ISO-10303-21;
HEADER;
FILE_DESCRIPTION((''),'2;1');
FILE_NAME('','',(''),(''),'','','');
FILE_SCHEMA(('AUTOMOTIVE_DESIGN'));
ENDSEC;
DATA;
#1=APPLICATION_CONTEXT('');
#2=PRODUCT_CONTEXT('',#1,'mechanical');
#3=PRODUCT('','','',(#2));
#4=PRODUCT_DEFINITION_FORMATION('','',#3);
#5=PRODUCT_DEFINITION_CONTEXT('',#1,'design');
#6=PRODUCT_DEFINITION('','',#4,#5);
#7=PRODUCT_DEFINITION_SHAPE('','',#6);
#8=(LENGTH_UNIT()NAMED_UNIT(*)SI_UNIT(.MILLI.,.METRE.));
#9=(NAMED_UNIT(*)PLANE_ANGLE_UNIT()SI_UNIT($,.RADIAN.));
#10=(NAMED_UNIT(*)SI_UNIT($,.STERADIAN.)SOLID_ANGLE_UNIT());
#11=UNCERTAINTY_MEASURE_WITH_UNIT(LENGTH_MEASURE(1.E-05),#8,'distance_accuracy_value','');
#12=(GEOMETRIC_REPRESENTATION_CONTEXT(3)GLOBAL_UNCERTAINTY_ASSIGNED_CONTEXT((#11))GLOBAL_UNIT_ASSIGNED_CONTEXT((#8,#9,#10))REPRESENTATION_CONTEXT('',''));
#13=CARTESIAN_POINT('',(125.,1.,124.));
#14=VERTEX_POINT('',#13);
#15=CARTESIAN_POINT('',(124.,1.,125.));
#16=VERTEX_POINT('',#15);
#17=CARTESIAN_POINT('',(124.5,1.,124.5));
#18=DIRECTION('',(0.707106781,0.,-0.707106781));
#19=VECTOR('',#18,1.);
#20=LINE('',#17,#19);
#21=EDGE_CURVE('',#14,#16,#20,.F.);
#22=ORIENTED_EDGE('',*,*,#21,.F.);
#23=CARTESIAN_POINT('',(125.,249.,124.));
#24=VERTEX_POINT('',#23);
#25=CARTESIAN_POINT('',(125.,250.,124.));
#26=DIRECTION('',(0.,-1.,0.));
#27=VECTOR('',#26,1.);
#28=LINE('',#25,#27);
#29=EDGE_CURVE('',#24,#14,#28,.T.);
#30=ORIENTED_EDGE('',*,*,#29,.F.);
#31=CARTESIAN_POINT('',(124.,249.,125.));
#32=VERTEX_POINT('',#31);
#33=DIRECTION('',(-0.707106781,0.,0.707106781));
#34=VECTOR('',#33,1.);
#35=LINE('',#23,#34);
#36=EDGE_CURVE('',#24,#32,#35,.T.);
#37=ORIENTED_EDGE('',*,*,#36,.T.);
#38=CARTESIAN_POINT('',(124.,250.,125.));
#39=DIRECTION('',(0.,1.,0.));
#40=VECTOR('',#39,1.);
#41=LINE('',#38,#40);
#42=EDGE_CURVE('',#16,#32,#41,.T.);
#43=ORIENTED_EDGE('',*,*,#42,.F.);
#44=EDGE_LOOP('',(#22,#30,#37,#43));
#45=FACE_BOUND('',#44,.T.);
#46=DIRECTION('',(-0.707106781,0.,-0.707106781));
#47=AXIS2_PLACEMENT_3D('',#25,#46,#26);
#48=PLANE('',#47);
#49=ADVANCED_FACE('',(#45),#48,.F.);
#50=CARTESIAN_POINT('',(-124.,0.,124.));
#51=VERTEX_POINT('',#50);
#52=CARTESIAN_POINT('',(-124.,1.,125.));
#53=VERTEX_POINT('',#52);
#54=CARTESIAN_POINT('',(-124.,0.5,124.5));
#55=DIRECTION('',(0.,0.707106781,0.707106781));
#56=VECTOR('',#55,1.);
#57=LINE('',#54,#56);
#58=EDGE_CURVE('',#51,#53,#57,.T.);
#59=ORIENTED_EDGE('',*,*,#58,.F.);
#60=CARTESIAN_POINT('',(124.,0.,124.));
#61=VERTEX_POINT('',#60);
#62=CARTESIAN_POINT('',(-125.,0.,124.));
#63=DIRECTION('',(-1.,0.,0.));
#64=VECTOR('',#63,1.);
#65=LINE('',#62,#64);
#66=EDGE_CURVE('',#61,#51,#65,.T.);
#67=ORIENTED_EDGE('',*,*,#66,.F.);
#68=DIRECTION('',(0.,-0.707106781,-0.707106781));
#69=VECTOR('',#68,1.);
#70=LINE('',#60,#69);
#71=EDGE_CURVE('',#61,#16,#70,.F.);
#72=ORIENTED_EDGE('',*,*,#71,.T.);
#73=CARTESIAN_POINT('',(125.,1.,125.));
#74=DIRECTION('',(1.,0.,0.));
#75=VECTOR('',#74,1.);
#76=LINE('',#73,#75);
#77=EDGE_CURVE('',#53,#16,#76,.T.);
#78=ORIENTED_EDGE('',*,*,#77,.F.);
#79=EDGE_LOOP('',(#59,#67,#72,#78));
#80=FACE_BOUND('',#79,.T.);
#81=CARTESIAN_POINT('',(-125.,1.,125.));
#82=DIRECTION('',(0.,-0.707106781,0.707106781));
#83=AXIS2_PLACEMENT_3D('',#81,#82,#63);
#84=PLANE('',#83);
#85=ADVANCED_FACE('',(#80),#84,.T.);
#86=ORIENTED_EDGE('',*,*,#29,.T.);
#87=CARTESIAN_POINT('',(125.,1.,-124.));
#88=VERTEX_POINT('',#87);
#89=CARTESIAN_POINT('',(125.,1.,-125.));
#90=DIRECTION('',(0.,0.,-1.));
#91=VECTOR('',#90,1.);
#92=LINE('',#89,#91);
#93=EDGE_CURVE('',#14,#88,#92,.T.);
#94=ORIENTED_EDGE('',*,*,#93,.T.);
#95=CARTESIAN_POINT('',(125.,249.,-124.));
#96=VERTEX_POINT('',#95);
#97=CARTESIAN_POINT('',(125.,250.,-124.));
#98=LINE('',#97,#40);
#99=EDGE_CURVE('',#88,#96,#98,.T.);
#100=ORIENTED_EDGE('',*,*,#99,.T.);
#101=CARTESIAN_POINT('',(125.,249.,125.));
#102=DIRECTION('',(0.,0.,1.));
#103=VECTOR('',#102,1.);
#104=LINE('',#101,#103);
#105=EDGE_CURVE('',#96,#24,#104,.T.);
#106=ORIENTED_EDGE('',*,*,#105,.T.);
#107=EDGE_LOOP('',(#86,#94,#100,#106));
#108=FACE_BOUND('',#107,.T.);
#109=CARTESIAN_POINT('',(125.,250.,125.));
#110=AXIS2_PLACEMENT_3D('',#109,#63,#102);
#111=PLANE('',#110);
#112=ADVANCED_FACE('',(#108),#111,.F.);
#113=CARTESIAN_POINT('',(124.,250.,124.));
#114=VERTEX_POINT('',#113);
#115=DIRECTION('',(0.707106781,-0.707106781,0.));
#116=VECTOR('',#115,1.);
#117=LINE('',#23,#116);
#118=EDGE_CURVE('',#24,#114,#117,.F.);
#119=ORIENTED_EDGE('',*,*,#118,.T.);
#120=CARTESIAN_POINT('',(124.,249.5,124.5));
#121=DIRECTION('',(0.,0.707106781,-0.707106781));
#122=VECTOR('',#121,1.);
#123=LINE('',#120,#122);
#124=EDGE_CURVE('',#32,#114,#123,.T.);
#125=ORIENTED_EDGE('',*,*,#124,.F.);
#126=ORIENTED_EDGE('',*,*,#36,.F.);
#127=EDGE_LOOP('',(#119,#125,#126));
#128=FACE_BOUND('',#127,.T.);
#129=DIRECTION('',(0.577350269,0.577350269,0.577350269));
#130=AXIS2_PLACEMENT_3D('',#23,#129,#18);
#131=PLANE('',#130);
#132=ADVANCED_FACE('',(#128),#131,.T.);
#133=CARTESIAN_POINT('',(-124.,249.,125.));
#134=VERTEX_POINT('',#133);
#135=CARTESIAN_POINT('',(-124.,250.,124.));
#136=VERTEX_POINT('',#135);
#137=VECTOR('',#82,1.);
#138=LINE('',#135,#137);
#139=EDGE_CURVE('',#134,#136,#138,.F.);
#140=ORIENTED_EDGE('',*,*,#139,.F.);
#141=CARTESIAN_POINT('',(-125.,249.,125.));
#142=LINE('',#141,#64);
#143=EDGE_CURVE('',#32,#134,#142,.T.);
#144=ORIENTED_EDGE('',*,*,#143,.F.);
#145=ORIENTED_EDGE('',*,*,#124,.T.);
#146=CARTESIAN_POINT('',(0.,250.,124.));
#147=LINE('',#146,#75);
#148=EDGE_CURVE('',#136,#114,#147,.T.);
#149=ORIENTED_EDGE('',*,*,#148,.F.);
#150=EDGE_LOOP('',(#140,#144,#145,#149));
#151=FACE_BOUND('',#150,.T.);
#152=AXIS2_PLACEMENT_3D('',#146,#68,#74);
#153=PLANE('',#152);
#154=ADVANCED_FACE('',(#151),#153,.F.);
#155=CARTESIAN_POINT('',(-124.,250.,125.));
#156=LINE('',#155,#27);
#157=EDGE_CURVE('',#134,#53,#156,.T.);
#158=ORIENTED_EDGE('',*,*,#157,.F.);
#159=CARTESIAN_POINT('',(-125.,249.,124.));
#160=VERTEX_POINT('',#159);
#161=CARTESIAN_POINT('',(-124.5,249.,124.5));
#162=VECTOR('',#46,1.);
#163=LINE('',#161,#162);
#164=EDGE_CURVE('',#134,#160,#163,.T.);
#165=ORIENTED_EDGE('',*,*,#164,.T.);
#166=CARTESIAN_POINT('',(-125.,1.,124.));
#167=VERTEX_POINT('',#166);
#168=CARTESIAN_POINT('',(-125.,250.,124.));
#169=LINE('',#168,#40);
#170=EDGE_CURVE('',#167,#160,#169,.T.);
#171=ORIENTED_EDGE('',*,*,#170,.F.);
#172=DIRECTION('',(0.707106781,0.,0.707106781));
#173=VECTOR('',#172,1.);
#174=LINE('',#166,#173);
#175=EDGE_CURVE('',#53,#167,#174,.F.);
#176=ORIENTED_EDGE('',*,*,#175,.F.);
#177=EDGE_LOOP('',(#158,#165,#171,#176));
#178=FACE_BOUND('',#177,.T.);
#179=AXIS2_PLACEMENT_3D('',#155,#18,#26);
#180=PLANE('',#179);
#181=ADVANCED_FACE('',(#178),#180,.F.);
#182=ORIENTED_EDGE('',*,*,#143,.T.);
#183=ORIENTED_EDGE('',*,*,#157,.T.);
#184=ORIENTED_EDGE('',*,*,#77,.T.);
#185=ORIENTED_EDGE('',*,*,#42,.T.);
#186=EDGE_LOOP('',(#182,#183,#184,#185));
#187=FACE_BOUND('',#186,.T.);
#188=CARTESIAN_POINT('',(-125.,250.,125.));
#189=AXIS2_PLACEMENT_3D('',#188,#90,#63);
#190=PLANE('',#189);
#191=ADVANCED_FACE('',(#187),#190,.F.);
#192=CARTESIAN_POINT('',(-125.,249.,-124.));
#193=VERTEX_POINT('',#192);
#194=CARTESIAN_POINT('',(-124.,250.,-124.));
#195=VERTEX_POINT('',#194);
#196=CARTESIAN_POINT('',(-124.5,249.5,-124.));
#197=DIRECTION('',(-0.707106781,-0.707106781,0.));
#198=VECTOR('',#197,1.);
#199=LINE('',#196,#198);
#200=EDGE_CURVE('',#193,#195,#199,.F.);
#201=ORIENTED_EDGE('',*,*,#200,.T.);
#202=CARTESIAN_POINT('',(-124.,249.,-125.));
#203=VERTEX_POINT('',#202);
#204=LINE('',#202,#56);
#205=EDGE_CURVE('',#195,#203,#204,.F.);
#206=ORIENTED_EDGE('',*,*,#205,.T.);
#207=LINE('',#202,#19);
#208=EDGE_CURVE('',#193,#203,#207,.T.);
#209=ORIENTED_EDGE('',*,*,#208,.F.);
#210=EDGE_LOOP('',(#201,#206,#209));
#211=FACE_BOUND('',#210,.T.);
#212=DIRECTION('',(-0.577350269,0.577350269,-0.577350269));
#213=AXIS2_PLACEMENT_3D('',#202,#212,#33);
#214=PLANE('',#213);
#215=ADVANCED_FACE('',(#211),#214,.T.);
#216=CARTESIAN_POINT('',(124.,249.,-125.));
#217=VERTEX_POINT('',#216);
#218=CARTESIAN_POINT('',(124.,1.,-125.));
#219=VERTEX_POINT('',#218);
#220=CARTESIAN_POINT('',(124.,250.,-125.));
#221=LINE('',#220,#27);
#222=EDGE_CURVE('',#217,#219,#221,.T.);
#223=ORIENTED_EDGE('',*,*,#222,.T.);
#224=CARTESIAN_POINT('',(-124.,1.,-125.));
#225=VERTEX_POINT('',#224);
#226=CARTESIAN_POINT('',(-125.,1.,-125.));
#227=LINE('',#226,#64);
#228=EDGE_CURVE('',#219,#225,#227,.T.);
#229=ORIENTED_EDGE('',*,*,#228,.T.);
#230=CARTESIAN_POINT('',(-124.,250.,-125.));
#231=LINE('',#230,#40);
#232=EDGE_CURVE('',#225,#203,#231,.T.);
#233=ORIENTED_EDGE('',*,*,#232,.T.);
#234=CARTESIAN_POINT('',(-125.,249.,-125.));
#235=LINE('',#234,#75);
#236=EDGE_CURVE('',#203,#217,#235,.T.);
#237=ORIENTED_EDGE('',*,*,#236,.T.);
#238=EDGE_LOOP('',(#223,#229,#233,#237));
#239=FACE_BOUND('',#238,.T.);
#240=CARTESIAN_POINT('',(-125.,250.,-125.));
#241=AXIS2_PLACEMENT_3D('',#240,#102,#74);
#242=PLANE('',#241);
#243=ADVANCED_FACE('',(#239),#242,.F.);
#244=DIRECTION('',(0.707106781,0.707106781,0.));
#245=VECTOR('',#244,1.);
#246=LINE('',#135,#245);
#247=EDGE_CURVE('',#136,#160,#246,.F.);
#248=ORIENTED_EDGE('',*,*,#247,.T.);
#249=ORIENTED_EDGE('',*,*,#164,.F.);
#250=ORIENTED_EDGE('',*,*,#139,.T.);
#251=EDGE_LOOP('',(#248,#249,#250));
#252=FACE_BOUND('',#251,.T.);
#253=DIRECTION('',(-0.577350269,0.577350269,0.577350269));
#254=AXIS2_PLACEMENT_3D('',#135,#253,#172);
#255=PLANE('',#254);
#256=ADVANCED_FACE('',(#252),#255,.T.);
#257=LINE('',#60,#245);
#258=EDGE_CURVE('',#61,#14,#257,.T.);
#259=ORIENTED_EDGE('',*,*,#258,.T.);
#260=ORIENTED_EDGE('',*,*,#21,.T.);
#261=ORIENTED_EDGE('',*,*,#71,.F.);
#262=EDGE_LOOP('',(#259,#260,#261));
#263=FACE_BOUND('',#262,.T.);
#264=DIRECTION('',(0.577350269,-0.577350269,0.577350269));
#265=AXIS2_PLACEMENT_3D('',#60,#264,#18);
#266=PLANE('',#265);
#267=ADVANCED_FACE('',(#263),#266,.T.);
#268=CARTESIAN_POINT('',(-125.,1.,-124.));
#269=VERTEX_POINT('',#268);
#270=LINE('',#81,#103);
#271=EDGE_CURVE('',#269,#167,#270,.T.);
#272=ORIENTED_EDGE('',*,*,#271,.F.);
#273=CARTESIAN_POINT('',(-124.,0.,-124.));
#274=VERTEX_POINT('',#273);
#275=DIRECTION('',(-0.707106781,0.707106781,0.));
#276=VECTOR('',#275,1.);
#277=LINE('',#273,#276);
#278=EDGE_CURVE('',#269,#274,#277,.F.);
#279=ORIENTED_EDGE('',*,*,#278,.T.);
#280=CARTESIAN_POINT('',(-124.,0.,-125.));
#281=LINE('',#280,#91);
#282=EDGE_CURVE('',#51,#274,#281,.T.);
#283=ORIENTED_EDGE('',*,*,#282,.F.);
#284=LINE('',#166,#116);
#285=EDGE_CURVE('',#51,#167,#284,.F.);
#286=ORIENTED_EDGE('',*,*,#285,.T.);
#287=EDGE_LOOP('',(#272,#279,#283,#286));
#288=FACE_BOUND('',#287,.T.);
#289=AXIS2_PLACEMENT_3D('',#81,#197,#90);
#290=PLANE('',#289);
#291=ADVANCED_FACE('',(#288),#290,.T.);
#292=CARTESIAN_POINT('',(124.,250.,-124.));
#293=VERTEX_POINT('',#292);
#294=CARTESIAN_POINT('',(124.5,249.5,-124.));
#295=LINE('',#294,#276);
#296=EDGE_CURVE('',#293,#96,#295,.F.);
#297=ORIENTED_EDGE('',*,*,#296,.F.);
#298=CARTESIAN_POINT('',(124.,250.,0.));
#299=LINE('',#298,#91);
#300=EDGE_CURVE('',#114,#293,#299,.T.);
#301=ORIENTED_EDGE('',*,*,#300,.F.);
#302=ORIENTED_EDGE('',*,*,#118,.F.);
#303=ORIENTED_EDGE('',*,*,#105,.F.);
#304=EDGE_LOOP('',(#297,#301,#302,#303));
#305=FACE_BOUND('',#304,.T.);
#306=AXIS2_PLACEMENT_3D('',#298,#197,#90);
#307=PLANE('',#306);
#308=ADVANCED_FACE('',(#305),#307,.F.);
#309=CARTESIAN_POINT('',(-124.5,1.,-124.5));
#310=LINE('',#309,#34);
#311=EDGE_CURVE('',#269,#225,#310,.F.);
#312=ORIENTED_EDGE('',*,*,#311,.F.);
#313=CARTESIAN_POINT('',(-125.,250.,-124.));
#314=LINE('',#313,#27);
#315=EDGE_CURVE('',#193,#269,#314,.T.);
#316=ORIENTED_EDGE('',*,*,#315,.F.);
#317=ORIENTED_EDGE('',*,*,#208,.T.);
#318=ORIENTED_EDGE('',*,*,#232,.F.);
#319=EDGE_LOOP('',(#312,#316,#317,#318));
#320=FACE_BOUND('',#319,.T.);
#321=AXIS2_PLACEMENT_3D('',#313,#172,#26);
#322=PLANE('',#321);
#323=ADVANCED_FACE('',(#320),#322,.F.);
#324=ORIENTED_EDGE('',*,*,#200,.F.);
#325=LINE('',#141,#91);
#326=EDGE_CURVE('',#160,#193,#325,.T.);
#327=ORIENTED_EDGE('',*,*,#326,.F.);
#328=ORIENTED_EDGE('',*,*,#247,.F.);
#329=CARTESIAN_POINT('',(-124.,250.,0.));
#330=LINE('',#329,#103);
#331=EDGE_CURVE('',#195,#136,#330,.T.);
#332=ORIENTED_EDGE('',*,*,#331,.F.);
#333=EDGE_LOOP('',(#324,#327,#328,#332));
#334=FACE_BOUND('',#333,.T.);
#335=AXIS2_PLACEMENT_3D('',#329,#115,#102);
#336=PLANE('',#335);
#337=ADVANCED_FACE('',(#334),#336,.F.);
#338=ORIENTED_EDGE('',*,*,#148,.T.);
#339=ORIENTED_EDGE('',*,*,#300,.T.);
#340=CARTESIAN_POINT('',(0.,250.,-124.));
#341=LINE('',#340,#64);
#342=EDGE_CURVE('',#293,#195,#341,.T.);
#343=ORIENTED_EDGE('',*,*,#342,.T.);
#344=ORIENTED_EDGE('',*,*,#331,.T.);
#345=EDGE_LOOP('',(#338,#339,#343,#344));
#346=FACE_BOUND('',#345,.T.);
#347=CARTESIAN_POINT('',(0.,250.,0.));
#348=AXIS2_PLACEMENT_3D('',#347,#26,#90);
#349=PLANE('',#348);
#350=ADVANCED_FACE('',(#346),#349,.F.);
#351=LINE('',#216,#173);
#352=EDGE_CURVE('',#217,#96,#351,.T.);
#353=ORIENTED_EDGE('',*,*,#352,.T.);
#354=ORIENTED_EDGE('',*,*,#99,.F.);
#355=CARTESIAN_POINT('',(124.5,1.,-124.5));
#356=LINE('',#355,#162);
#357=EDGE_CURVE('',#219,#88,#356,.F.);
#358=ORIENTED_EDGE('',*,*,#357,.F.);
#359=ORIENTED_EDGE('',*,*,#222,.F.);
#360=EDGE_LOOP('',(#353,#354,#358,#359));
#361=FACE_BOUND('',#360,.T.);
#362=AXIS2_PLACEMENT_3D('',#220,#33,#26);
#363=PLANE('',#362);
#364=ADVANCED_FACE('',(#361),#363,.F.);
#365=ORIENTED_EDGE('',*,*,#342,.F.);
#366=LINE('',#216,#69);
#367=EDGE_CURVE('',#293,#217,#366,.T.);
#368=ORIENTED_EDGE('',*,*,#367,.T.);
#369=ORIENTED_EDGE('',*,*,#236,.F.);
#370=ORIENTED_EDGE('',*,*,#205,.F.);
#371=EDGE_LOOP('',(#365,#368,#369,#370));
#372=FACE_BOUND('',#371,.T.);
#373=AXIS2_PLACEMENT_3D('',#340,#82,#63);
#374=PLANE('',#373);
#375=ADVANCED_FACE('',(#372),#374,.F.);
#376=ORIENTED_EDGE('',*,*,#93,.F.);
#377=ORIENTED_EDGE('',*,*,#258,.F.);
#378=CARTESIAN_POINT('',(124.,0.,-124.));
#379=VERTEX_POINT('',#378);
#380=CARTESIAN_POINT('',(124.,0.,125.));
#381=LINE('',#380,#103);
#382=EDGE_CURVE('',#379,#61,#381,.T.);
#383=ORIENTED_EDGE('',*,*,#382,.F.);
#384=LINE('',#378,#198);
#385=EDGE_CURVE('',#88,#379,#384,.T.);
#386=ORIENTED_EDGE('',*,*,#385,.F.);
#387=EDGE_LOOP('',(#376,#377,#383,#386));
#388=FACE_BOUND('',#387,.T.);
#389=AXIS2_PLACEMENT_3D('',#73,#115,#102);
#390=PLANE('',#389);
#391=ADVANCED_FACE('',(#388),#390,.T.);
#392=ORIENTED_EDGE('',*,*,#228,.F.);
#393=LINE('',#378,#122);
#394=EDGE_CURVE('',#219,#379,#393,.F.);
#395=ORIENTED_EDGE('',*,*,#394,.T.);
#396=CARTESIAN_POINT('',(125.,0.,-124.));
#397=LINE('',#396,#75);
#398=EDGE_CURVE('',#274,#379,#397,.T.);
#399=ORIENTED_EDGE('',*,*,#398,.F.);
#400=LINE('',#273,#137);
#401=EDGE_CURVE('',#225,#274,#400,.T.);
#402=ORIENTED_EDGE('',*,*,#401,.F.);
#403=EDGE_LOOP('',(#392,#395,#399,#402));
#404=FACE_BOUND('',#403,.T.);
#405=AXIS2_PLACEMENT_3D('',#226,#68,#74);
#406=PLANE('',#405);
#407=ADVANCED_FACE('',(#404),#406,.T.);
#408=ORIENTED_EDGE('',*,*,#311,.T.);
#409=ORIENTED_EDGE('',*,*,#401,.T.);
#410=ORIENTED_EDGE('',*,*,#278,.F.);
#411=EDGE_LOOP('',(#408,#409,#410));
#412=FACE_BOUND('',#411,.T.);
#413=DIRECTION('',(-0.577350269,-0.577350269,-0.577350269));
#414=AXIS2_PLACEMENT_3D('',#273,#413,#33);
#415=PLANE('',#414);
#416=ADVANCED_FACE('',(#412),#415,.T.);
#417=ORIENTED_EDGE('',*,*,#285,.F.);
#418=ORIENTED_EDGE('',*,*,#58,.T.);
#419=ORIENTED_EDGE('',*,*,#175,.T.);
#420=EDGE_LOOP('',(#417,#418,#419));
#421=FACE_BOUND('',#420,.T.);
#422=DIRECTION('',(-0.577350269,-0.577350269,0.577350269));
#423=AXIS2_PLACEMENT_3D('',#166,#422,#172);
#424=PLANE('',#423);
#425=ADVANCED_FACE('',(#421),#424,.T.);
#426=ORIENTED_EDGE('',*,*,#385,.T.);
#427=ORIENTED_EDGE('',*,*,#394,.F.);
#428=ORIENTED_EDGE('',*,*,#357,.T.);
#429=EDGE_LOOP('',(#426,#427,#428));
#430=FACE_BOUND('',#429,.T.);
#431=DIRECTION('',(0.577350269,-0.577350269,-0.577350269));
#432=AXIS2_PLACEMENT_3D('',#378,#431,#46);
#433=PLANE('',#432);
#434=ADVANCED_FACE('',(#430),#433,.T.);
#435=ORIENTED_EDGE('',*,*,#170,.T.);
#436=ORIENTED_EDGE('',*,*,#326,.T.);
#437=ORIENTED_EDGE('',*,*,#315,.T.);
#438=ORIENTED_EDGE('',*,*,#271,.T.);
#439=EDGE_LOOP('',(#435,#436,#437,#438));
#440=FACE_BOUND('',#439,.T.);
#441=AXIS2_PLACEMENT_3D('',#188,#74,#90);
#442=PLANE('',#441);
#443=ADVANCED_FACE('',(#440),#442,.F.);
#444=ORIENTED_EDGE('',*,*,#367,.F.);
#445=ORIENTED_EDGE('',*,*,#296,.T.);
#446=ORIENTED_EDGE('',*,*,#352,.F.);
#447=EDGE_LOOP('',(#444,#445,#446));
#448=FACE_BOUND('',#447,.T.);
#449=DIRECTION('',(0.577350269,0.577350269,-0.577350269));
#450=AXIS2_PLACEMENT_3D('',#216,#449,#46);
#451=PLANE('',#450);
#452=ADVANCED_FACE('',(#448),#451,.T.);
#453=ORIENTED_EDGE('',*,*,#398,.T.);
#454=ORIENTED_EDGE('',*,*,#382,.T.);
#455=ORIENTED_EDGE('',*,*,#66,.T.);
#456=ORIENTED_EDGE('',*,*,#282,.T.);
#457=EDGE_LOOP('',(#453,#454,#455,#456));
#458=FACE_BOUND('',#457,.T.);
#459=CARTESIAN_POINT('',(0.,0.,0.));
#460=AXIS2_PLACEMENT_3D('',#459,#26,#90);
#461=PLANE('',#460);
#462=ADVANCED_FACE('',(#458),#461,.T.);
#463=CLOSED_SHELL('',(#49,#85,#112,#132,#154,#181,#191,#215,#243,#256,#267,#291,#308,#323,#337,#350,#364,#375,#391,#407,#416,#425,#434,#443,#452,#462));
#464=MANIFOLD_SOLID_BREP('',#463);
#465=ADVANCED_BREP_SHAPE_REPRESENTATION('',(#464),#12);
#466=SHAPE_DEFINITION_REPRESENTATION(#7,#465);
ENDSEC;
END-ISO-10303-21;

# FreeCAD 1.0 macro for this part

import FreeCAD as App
import Part
import Sketcher

V = App.Vector


def add_polygon(sketch, points):
    """Adds a closed chain of lines whose ends are joined by coincident constraints."""
    first, n = sketch.GeometryCount, len(points)
    for a, b in zip(points, points[1:] + points[:1]):
        sketch.addGeometry(Part.LineSegment(App.Vector(*a, 0), App.Vector(*b, 0)), False)
    for i in range(n):
        sketch.addConstraint(Sketcher.Constraint("Coincident", first + i, 2, first + (i + 1) % n, 1))

doc = App.newDocument("Part")
params = doc.addObject("Spreadsheet::Sheet", "Params")
for row, (alias, value) in enumerate([
    ("sketch1_width", "250 mm"),
    ("pad1_length", "250 mm"),
    ("chamfer_size", "1 mm"),
], start=1):
    params.set(f"A{row}", alias)
    params.set(f"B{row}", "=" + value)
    params.setAlias(f"B{row}", alias)

body = doc.addObject("PartDesign::Body", "Body")

# Sketch on XZ plane
sketch1 = body.newObject("Sketcher::SketchObject", "Sketch")
sketch1.AttachmentSupport = (doc.getObject("XZ_Plane"), [""])
sketch1.MapMode = "FlatFace"
add_polygon(sketch1, [(-125, -125), (-125, 125), (125, 125), (125, -125)])  # lines 0-3
sketch1.addConstraint([
    Sketcher.Constraint("Vertical", 0),
    Sketcher.Constraint("Horizontal", 1),
    Sketcher.Constraint("Vertical", 2),
    Sketcher.Constraint("Horizontal", 3),
    Sketcher.Constraint("Symmetric", 0, 2, 2, 2, -1, 1),
    Sketcher.Constraint("Equal", 3, 0),
    Sketcher.Constraint("DistanceX", 1, 1, 1, 2, 250.0),
])
sketch1.setExpression("Constraints[10]", "Params.sketch1_width")
pad1 = body.newObject("PartDesign::Pad", "Pad")
pad1.Profile = sketch1
pad1.setExpression("Length", "Params.pad1_length")
pad1.Reversed = True
doc.recompute()

chamfer = body.newObject("PartDesign::Chamfer", "Chamfer")
chamfer.Base = (pad1, ["Edge1"])
chamfer.UseAllEdges = True
chamfer.setExpression("Size", "Params.chamfer_size")

doc.recompute()
